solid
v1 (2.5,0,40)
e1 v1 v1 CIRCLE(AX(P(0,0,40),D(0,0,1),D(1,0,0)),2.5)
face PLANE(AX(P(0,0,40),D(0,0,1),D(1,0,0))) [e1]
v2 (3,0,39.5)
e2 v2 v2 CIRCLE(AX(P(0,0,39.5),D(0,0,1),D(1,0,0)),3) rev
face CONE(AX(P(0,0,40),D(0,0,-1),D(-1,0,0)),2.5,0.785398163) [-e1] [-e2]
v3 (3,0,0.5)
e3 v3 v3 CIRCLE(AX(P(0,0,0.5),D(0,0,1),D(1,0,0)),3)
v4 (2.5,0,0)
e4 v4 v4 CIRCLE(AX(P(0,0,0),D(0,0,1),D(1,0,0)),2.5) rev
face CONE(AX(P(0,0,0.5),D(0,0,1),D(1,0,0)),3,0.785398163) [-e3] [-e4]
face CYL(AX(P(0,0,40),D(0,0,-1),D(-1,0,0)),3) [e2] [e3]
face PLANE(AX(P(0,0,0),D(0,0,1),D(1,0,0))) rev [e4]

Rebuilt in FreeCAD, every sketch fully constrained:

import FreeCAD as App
import Part
import Sketcher

V = App.Vector
Q = App.Units.Quantity


def edges_at(feature, points):
    """Names of the edges that pass closest to the given points."""
    edges = feature.Shape.Edges
    near = lambda p: min(range(len(edges)), key=lambda i: edges[i].distToShape(Part.Vertex(*p))[0])
    return sorted({f"Edge{near(p) + 1}" for p in points})

doc = App.newDocument("Part")
body = doc.addObject("PartDesign::Body", "Body")

sketch1 = doc.addObject("Sketcher::SketchObject", "Sketch")
body.addObject(sketch1)
sketch1.AttachmentSupport = (doc.XY_Plane, [""])
sketch1.MapMode = "FlatFace"
sketch1.addGeometry(Part.Circle(V(0, 0, 0), V(0, 0, 1), 3), False)
sketch1.addConstraint(Sketcher.Constraint("Coincident", 0, 3, -1, 1))
sketch1.addConstraint(Sketcher.Constraint("Diameter", 0, Q("6 mm")))
pad1 = doc.addObject("PartDesign::Pad", "Pad")
body.addObject(pad1)
pad1.Profile = sketch1
pad1.Length = 40
doc.recompute()

chamfer = doc.addObject("PartDesign::Chamfer", "Chamfer")
body.addObject(chamfer)
chamfer.Base = (pad1, edges_at(pad1, [(-3, 0, 0), (-3, 0, 40)]))
chamfer.Size = 0.5

doc.recompute()
